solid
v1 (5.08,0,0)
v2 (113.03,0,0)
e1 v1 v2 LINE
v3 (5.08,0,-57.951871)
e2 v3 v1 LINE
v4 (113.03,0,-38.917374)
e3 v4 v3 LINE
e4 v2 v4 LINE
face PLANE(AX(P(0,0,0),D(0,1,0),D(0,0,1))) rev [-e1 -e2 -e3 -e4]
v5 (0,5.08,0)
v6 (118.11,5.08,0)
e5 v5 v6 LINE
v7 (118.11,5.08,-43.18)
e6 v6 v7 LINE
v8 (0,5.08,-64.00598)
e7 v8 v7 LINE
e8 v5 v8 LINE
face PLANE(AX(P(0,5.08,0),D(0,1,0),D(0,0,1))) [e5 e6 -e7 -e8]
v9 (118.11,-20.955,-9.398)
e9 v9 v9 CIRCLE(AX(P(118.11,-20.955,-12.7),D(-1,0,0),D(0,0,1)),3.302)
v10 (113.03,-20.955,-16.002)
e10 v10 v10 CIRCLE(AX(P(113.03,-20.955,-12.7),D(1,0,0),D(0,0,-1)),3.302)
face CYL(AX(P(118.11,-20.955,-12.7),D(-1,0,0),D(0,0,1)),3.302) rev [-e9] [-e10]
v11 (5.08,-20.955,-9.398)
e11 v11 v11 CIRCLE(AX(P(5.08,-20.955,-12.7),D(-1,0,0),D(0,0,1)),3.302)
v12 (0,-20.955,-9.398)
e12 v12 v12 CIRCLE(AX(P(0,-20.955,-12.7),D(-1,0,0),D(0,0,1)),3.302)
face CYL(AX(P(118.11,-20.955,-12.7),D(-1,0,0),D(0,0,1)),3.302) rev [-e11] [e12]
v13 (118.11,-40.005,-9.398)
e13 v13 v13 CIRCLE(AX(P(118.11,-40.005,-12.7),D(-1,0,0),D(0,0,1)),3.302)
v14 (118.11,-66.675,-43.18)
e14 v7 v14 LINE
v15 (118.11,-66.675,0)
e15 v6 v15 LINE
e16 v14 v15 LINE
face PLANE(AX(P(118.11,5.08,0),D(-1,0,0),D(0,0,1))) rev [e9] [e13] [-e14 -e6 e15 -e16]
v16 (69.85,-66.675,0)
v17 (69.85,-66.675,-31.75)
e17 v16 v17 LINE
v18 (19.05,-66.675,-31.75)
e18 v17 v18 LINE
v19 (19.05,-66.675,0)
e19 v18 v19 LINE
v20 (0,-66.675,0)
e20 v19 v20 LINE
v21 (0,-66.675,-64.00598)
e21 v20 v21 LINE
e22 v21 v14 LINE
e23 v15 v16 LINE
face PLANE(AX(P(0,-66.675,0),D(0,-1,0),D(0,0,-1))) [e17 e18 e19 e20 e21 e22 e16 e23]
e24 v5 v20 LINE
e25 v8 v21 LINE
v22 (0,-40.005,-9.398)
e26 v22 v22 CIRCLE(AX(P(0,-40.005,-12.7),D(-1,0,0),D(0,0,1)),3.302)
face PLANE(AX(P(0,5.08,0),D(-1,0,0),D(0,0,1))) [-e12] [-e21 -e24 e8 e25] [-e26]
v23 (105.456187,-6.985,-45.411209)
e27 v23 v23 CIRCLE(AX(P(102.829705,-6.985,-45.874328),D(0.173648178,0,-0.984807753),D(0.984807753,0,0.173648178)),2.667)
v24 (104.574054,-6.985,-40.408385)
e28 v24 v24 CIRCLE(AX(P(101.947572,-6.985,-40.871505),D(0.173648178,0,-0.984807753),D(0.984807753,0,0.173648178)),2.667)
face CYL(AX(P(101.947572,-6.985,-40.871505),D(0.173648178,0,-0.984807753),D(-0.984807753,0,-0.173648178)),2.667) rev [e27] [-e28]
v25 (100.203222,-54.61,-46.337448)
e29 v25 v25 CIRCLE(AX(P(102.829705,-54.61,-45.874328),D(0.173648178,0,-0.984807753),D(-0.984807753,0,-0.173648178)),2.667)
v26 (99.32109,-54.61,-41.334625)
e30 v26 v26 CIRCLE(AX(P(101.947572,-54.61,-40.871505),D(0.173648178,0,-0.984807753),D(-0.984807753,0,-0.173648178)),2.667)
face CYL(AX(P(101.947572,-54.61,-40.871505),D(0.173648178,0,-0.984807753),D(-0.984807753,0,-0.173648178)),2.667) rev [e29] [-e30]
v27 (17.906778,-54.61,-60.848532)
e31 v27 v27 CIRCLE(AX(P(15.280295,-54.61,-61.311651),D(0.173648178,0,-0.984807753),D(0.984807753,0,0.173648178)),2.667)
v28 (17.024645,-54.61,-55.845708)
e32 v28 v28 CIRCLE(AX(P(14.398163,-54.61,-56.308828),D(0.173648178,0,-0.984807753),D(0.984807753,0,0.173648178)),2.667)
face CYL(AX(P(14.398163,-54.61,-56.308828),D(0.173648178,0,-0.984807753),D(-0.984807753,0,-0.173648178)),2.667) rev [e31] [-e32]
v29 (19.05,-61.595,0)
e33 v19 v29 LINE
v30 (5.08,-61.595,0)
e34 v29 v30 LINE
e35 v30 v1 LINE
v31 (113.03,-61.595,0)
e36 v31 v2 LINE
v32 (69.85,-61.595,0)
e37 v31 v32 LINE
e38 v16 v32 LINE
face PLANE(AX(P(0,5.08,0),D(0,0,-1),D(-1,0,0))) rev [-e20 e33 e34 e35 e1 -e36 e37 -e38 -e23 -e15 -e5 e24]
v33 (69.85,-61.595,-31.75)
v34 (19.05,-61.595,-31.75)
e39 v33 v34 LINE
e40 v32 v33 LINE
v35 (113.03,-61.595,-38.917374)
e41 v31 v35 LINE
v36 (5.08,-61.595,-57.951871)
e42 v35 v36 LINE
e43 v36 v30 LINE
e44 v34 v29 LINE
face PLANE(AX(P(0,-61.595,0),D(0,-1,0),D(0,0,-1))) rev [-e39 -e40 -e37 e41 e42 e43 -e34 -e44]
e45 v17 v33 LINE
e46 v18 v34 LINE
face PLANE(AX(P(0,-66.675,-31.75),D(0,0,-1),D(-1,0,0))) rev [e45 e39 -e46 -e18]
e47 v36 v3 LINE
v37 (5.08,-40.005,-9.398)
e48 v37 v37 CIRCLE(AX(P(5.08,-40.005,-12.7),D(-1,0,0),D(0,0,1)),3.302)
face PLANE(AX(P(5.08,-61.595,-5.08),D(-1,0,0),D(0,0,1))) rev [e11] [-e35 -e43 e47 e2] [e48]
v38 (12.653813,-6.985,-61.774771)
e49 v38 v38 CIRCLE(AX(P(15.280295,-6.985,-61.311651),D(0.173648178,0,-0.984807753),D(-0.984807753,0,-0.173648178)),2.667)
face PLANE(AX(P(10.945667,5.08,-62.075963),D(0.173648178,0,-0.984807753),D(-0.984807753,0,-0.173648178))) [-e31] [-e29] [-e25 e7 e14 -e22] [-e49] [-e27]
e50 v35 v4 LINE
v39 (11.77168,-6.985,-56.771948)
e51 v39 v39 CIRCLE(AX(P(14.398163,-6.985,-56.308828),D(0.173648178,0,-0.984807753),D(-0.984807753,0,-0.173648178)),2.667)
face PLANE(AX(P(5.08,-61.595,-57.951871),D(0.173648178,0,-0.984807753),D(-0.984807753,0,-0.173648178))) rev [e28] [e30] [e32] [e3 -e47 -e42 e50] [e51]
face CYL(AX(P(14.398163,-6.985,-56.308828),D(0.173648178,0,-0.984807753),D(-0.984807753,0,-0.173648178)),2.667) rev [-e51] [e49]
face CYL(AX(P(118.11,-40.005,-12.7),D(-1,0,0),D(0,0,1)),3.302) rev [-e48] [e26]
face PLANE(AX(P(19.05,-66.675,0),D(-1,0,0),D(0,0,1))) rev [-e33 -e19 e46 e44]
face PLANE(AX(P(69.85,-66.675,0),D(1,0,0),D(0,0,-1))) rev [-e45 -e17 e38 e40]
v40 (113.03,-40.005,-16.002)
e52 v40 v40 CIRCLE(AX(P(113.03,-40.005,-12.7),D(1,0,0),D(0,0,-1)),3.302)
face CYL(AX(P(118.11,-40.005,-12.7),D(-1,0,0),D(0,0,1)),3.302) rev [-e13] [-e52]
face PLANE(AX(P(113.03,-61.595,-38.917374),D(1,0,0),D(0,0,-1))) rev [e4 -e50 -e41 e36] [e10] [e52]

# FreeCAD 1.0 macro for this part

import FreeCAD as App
import Part
import Sketcher
Q = App.Units.Quantity


def add_polygon(sketch, points):
    """Adds a closed chain of lines whose ends are joined by coincident constraints."""
    first, n = sketch.GeometryCount, len(points)
    for a, b in zip(points, points[1:] + points[:1]):
        sketch.addGeometry(Part.LineSegment(App.Vector(*a, 0), App.Vector(*b, 0)), False)
    for i in range(n):
        sketch.addConstraint(Sketcher.Constraint("Coincident", first + i, 2, first + (i + 1) % n, 1))

doc = App.newDocument("Part")
body = doc.addObject("PartDesign::Body", "Body")

sketch1 = body.newObject("Sketcher::SketchObject", "Sketch")
sketch1.AttachmentSupport = (doc.getObject("XZ_Plane"), [""])
sketch1.MapMode = "FlatFace"
add_polygon(sketch1, [(0, -64), (0, 0), (118, 0), (118, -43)])
sketch1.addConstraint(Sketcher.Constraint("Vertical", 0))
sketch1.addConstraint(Sketcher.Constraint("Horizontal", 1))
sketch1.addConstraint(Sketcher.Constraint("Vertical", 2))
sketch1.addConstraint(Sketcher.Constraint("Coincident", 0, 2, -1, 1))
sketch1.addConstraint(Sketcher.Constraint("DistanceY", 2, 2, 2, 1, Q("1.7 in")))
sketch1.addConstraint(Sketcher.Constraint("Angle", 3, Q("-170 deg")))
sketch1.addConstraint(Sketcher.Constraint("DistanceX", 1, 1, 1, 2, Q("4.65 in")))
pad1 = body.newObject("PartDesign::Pad", "Pad")
pad1.Profile = sketch1
pad1.Length = Q("0.2 in")
pad1.Reversed = True

sketch2 = body.newObject("Sketcher::SketchObject", "Sketch001")
sketch2.AttachmentSupport = (doc.getObject("XZ_Plane"), [""])
sketch2.MapMode = "FlatFace"
add_polygon(sketch2, [(5, -58), (5, 0), (0, 0), (0, -64), (118, -43), (118, 0), (113, 0), (113, -39)])
sketch2.addConstraint(Sketcher.Constraint("Vertical", 0))
sketch2.addConstraint(Sketcher.Constraint("Horizontal", 1))
sketch2.addConstraint(Sketcher.Constraint("Vertical", 2))
sketch2.addConstraint(Sketcher.Constraint("Vertical", 4))
sketch2.addConstraint(Sketcher.Constraint("Horizontal", 5))
sketch2.addConstraint(Sketcher.Constraint("Vertical", 6))
sketch2.addConstraint(Sketcher.Constraint("Coincident", 1, 2, -1, 1))
sketch2.addConstraint(Sketcher.Constraint("PointOnObject", 4, 2, -1))
sketch2.addConstraint(Sketcher.Constraint("Parallel", 3, 7))
sketch2.addConstraint(Sketcher.Constraint("Equal", 1, 5))
sketch2.addConstraint(Sketcher.Constraint("DistanceX", 1, 2, 1, 1, Q("0.2 in")))
sketch2.addConstraint(Sketcher.Constraint("DistanceY", 4, 1, 4, 2, Q("1.7 in")))
sketch2.addConstraint(Sketcher.Constraint("Angle", 3, Q("10 deg")))
sketch2.addConstraint(Sketcher.Constraint("DistanceX", -1, 1, 3, 2, Q("4.65 in")))
sketch2.addConstraint(Sketcher.Constraint("DistanceY", 0, 1, 0, 2, 57.951871))
pad2 = body.newObject("PartDesign::Pad", "Pad001")
pad2.Profile = sketch2
pad2.Length = Q("2.425 in")

sketch3 = body.newObject("Sketcher::SketchObject", "Sketch002")
sketch3.AttachmentSupport = (doc.getObject("XZ_Plane"), [""])
sketch3.MapMode = "FlatFace"
sketch3.AttachmentOffset = App.Placement(App.Vector(0, 0, 2.425 * 25.4), App.Rotation())
add_polygon(sketch3, [(70, 0), (70, -32), (19, -32), (19, 0), (0, 0), (0, -64), (118, -43), (118, 0)])
sketch3.addConstraint(Sketcher.Constraint("Vertical", 0))
sketch3.addConstraint(Sketcher.Constraint("Horizontal", 1))
sketch3.addConstraint(Sketcher.Constraint("Vertical", 2))
sketch3.addConstraint(Sketcher.Constraint("Horizontal", 3))
sketch3.addConstraint(Sketcher.Constraint("Vertical", 4))
sketch3.addConstraint(Sketcher.Constraint("Vertical", 6))
sketch3.addConstraint(Sketcher.Constraint("Horizontal", 7))
sketch3.addConstraint(Sketcher.Constraint("Coincident", 3, 2, -1, 1))
sketch3.addConstraint(Sketcher.Constraint("PointOnObject", 6, 2, -1))
sketch3.addConstraint(Sketcher.Constraint("DistanceX", 1, 2, 1, 1, Q("2 in")))
sketch3.addConstraint(Sketcher.Constraint("DistanceX", 7, 2, 7, 1, Q("1.9 in")))
sketch3.addConstraint(Sketcher.Constraint("DistanceY", 6, 1, 6, 2, Q("1.7 in")))
sketch3.addConstraint(Sketcher.Constraint("Angle", 5, Q("10 deg")))
sketch3.addConstraint(Sketcher.Constraint("DistanceX", 3, 2, 3, 1, Q("0.75 in")))
sketch3.addConstraint(Sketcher.Constraint("DistanceY", 0, 2, 0, 1, Q("1.25 in")))
pad3 = body.newObject("PartDesign::Pad", "Pad002")
pad3.Profile = sketch3
pad3.Length = Q("0.2 in")

sketch4 = body.newObject("Sketcher::SketchObject", "Sketch003")
sketch4.AttachmentSupport = (doc.getObject("YZ_Plane"), [""])
sketch4.MapMode = "FlatFace"
sketch4.addGeometry(Part.Circle(App.Vector(-21, -12.7, 0), App.Vector(0, 0, 1), 3.3), False)
sketch4.addGeometry(Part.Circle(App.Vector(-40, -12.7, 0), App.Vector(0, 0, 1), 3.3), False)
sketch4.addConstraint(Sketcher.Constraint("Equal", 0, 1))
sketch4.addConstraint(Sketcher.Constraint("Horizontal", 0, 3, 1, 3))
sketch4.addConstraint(Sketcher.Constraint("Diameter", 0, Q("0.26 in")))
sketch4.addConstraint(Sketcher.Constraint("DistanceY", 0, 3, -1, 1, Q("0.5 in")))
sketch4.addConstraint(Sketcher.Constraint("DistanceX", 1, 3, 0, 3, Q("0.75 in")))
sketch4.addConstraint(Sketcher.Constraint("DistanceX", 0, 3, -1, 1, Q("0.825 in")))
pocket1 = body.newObject("PartDesign::Pocket", "Pocket")
pocket1.Profile = sketch4
pocket1.Type = "ThroughAll"
pocket1.Reversed = True

sketch5 = body.newObject("Sketcher::SketchObject", "Sketch004")
sketch5.Placement = App.Placement(App.Vector(10.945667, 0, -62.075963), App.Rotation(App.Vector(-0.984807753, 0, -0.173648178), App.Vector(0, 1, 0), App.Vector(0.173648178, 0, -0.984807753), "ZXY"))
sketch5.addGeometry(Part.Circle(App.Vector(-93.3, -7, 0), App.Vector(0, 0, 1), 2.7), False)
sketch5.addGeometry(Part.Circle(App.Vector(-93.3, -54.6, 0), App.Vector(0, 0, 1), 2.7), False)
sketch5.addGeometry(Part.Circle(App.Vector(-4.4, -7, 0), App.Vector(0, 0, 1), 2.7), False)
sketch5.addGeometry(Part.Circle(App.Vector(-4.4, -54.6, 0), App.Vector(0, 0, 1), 2.7), False)
sketch5.addConstraint(Sketcher.Constraint("Equal", 0, 1))
sketch5.addConstraint(Sketcher.Constraint("Equal", 1, 2))
sketch5.addConstraint(Sketcher.Constraint("Equal", 2, 3))
sketch5.addConstraint(Sketcher.Constraint("Horizontal", 0, 3, 2, 3))
sketch5.addConstraint(Sketcher.Constraint("Horizontal", 1, 3, 3, 3))
sketch5.addConstraint(Sketcher.Constraint("Vertical", 0, 3, 1, 3))
sketch5.addConstraint(Sketcher.Constraint("Vertical", 2, 3, 3, 3))
sketch5.addConstraint(Sketcher.Constraint("Diameter", 0, Q("0.21 in")))
sketch5.addConstraint(Sketcher.Constraint("DistanceX", 0, 3, 2, 3, Q("3.5 in")))
sketch5.addConstraint(Sketcher.Constraint("DistanceY", 1, 3, -1, 1, Q("2.15 in")))
sketch5.addConstraint(Sketcher.Constraint("DistanceY", 0, 3, -1, 1, Q("0.275 in")))
sketch5.addConstraint(Sketcher.Constraint("DistanceX", 0, 3, -1, 1, 93.301497))
pocket2 = body.newObject("PartDesign::Pocket", "Pocket001")
pocket2.Profile = sketch5
pocket2.Length = Q("0.2 in")

doc.recompute()
